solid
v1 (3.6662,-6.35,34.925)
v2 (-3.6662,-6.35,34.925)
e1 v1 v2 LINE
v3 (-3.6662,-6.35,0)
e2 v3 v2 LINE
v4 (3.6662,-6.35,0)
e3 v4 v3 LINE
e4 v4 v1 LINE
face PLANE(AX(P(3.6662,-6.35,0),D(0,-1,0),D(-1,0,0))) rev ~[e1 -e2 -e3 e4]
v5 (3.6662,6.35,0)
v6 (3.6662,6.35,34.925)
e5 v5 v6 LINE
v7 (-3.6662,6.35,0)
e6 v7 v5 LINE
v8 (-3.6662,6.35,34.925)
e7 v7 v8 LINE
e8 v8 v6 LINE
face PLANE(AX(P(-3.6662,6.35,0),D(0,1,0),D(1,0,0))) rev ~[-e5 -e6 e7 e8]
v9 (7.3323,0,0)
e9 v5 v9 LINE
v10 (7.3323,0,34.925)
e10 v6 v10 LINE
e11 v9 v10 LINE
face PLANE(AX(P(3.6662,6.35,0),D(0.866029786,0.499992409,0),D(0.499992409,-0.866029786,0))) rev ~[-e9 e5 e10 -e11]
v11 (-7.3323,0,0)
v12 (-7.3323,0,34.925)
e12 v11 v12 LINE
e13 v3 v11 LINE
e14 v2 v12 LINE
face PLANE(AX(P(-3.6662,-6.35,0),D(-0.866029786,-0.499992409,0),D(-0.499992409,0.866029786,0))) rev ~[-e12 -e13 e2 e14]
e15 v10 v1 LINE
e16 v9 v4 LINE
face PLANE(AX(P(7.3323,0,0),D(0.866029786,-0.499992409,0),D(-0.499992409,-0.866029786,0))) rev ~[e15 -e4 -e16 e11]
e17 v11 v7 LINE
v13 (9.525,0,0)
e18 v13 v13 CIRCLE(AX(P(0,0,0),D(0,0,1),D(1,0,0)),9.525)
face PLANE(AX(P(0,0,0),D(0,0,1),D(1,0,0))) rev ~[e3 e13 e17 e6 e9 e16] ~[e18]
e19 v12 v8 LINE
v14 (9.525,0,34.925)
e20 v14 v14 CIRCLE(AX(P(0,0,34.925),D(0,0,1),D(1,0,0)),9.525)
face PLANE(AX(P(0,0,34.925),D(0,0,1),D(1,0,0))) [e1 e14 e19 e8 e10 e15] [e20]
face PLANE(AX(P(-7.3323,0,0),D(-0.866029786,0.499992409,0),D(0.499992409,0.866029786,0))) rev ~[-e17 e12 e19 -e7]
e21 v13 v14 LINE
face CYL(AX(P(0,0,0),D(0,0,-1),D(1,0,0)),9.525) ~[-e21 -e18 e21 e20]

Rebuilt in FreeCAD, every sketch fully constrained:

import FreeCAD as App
import Part
import Sketcher

V = App.Vector
Q = App.Units.Quantity


def add_polygon(sketch, points):
    """Adds a closed chain of lines whose ends are joined by coincident constraints."""
    first, n = sketch.GeometryCount, len(points)
    for a, b in zip(points, points[1:] + points[:1]):
        sketch.addGeometry(Part.LineSegment(App.Vector(*a, 0), App.Vector(*b, 0)), False)
    for i in range(n):
        sketch.addConstraint(Sketcher.Constraint("Coincident", first + i, 2, first + (i + 1) % n, 1))

doc = App.newDocument("Part")
body = doc.addObject("PartDesign::Body", "Body")

# Sketch on XY plane
sketch1 = body.newObject("Sketcher::SketchObject", "Sketch")
sketch1.AttachmentSupport = (doc.getObject("XY_Plane"), [""])
sketch1.MapMode = "FlatFace"
sketch1.addGeometry(Part.Circle(V(0, 0, 0), V(0, 0, 1), 10), False)  # 0
add_polygon(sketch1, [(-4, 6), (4, 6), (7, 0), (4, -6), (-4, -6), (-7, 0)])  # lines 1-6
sketch1.addConstraint(Sketcher.Constraint("Horizontal", 1))
sketch1.addConstraint(Sketcher.Constraint("Horizontal", 4))
sketch1.addConstraint(Sketcher.Constraint("Coincident", 0, 3, -1, 1))
sketch1.addConstraint(Sketcher.Constraint("Symmetric", 1, 2, 4, 2, -1, 1))
sketch1.addConstraint(Sketcher.Constraint("Symmetric", 2, 2, 5, 2, -1, 1))
sketch1.addConstraint(Sketcher.Constraint("PointOnObject", 2, 2, -1))
sketch1.addConstraint(Sketcher.Constraint("Parallel", 3, 6))
sketch1.addConstraint(Sketcher.Constraint("Vertical", 1, 2, 3, 2))
sketch1.addConstraint(Sketcher.Constraint("Diameter", 0, Q("0.75 in")))
sketch1.addConstraint(Sketcher.Constraint("DistanceY", 3, 2, 1, 2, Q("0.5 in")))
sketch1.addConstraint(Sketcher.Constraint("Angle", 2, Q("-60.0005 deg")))
sketch1.addConstraint(Sketcher.Constraint("DistanceX", 4, 2, 2, 2, Q("0.433 in")))
pad1 = body.newObject("PartDesign::Pad", "Pad")
pad1.Profile = sketch1
pad1.Length = Q("1.375 in")

doc.recompute()
